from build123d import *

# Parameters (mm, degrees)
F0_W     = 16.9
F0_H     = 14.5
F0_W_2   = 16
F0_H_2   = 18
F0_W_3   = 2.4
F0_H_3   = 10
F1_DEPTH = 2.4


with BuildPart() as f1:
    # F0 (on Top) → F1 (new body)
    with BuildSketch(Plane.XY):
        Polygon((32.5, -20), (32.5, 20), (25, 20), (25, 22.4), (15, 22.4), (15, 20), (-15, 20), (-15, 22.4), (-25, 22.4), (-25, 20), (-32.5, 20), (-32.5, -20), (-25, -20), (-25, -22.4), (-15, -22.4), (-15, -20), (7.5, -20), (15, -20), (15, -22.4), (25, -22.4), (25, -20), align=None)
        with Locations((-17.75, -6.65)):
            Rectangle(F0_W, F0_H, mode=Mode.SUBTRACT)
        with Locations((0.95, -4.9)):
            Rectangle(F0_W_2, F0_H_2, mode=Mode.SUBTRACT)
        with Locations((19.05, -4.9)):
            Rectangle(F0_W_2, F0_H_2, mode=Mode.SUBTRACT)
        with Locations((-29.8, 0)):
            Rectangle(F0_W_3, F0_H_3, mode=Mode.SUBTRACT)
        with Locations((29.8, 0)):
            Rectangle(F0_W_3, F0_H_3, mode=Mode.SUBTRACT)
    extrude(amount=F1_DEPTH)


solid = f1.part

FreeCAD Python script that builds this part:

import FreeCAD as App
import Part
import Sketcher
Q = App.Units.Quantity

doc = App.newDocument("Part")
params = doc.addObject("Spreadsheet::Sheet", "Params")
for row, (alias, value) in enumerate([
    ("sketch1_width", "10 mm"),
    ("sketch1_width2", "30 mm"),
    ("sketch1_width3", "16 mm"),
    ("sketch1_height", "40 mm"),
    ("sketch1_height2", "18 mm"),
    ("pad1_length", "2.4 mm"),
], start=1):
    params.set(f"A{row}", alias)
    params.set(f"B{row}", "=" + value)
    params.setAlias(f"B{row}", alias)

body = doc.addObject("PartDesign::Body", "Body")

# Sketch on XY plane
sketch1 = body.newObject("Sketcher::SketchObject", "Sketch")
sketch1.AttachmentSupport = (doc.getObject("XY_Plane"), [""])
sketch1.MapMode = "FlatFace"
sketch1.addGeometry([
    Part.LineSegment(App.Vector(32.5, -20, 0), App.Vector(32.5, 20, 0)),  # 0
    Part.LineSegment(App.Vector(32.5, 20, 0), App.Vector(25, 20, 0)),  # 1
    Part.LineSegment(App.Vector(25, 20, 0), App.Vector(25, 22.4, 0)),  # 2
    Part.LineSegment(App.Vector(25, 22.4, 0), App.Vector(15, 22.4, 0)),  # 3
    Part.LineSegment(App.Vector(15, 22.4, 0), App.Vector(15, 20, 0)),  # 4
    Part.LineSegment(App.Vector(15, 20, 0), App.Vector(-15, 20, 0)),  # 5
    Part.LineSegment(App.Vector(-15, 20, 0), App.Vector(-15, 22.4, 0)),  # 6
    Part.LineSegment(App.Vector(-15, 22.4, 0), App.Vector(-25, 22.4, 0)),  # 7
    Part.LineSegment(App.Vector(-25, 22.4, 0), App.Vector(-25, 20, 0)),  # 8
    Part.LineSegment(App.Vector(-25, 20, 0), App.Vector(-32.5, 20, 0)),  # 9
    Part.LineSegment(App.Vector(-32.5, 20, 0), App.Vector(-32.5, -20, 0)),  # 10
    Part.LineSegment(App.Vector(-32.5, -20, 0), App.Vector(-25, -20, 0)),  # 11
    Part.LineSegment(App.Vector(-25, -20, 0), App.Vector(-25, -22.4, 0)),  # 12
    Part.LineSegment(App.Vector(-25, -22.4, 0), App.Vector(-15, -22.4, 0)),  # 13
    Part.LineSegment(App.Vector(-15, -22.4, 0), App.Vector(-15, -20, 0)),  # 14
    Part.LineSegment(App.Vector(-15, -20, 0), App.Vector(15, -20, 0)),  # 15
    Part.LineSegment(App.Vector(15, -20, 0), App.Vector(15, -22.4, 0)),  # 16
    Part.LineSegment(App.Vector(15, -22.4, 0), App.Vector(25, -22.4, 0)),  # 17
    Part.LineSegment(App.Vector(25, -22.4, 0), App.Vector(25, -20, 0)),  # 18
    Part.LineSegment(App.Vector(25, -20, 0), App.Vector(32.5, -20, 0)),  # 19
    Part.LineSegment(App.Vector(-9.3, -13.9, 0), App.Vector(-26.2, -13.9, 0)),  # 20
    Part.LineSegment(App.Vector(-26.2, -13.9, 0), App.Vector(-26.2, 0.6, 0)),  # 21
    Part.LineSegment(App.Vector(-26.2, 0.6, 0), App.Vector(-9.3, 0.6, 0)),  # 22
    Part.LineSegment(App.Vector(-9.3, 0.6, 0), App.Vector(-9.3, -13.9, 0)),  # 23
    Part.LineSegment(App.Vector(8.9, -13.9, 0), App.Vector(-7, -13.9, 0)),  # 24
    Part.LineSegment(App.Vector(-7, -13.9, 0), App.Vector(-7, 4.1, 0)),  # 25
    Part.LineSegment(App.Vector(-7, 4.1, 0), App.Vector(8.9, 4.1, 0)),  # 26
    Part.LineSegment(App.Vector(8.9, 4.1, 0), App.Vector(8.9, -13.9, 0)),  # 27
    Part.LineSegment(App.Vector(27.1, -13.9, 0), App.Vector(11.1, -13.9, 0)),  # 28
    Part.LineSegment(App.Vector(11.1, -13.9, 0), App.Vector(11.1, 4.1, 0)),  # 29
    Part.LineSegment(App.Vector(11.1, 4.1, 0), App.Vector(27.1, 4.1, 0)),  # 30
    Part.LineSegment(App.Vector(27.1, 4.1, 0), App.Vector(27.1, -13.9, 0)),  # 31
    Part.LineSegment(App.Vector(-28.6, -5, 0), App.Vector(-31, -5, 0)),  # 32
    Part.LineSegment(App.Vector(-31, -5, 0), App.Vector(-31, 5, 0)),  # 33
    Part.LineSegment(App.Vector(-31, 5, 0), App.Vector(-28.6, 5, 0)),  # 34
    Part.LineSegment(App.Vector(-28.6, 5, 0), App.Vector(-28.6, -5, 0)),  # 35
    Part.LineSegment(App.Vector(31, -5, 0), App.Vector(28.6, -5, 0)),  # 36
    Part.LineSegment(App.Vector(28.6, -5, 0), App.Vector(28.6, 5, 0)),  # 37
    Part.LineSegment(App.Vector(28.6, 5, 0), App.Vector(31, 5, 0)),  # 38
    Part.LineSegment(App.Vector(31, 5, 0), App.Vector(31, -5, 0)),  # 39
], False)
sketch1.addConstraint([
    Sketcher.Constraint("Coincident", 0, 2, 1, 1),
    Sketcher.Constraint("Coincident", 1, 2, 2, 1),
    Sketcher.Constraint("Coincident", 2, 2, 3, 1),
    Sketcher.Constraint("Coincident", 3, 2, 4, 1),
    Sketcher.Constraint("Coincident", 4, 2, 5, 1),
    Sketcher.Constraint("Coincident", 5, 2, 6, 1),
    Sketcher.Constraint("Coincident", 6, 2, 7, 1),
    Sketcher.Constraint("Coincident", 7, 2, 8, 1),
    Sketcher.Constraint("Coincident", 8, 2, 9, 1),
    Sketcher.Constraint("Coincident", 9, 2, 10, 1),
    Sketcher.Constraint("Coincident", 10, 2, 11, 1),
    Sketcher.Constraint("Coincident", 11, 2, 12, 1),
    Sketcher.Constraint("Coincident", 12, 2, 13, 1),
    Sketcher.Constraint("Coincident", 13, 2, 14, 1),
    Sketcher.Constraint("Coincident", 14, 2, 15, 1),
    Sketcher.Constraint("Coincident", 15, 2, 16, 1),
    Sketcher.Constraint("Coincident", 16, 2, 17, 1),
    Sketcher.Constraint("Coincident", 17, 2, 18, 1),
    Sketcher.Constraint("Coincident", 18, 2, 19, 1),
    Sketcher.Constraint("Coincident", 19, 2, 0, 1),
    Sketcher.Constraint("Coincident", 20, 2, 21, 1),
    Sketcher.Constraint("Coincident", 21, 2, 22, 1),
    Sketcher.Constraint("Coincident", 22, 2, 23, 1),
    Sketcher.Constraint("Coincident", 23, 2, 20, 1),
    Sketcher.Constraint("Coincident", 24, 2, 25, 1),
    Sketcher.Constraint("Coincident", 25, 2, 26, 1),
    Sketcher.Constraint("Coincident", 26, 2, 27, 1),
    Sketcher.Constraint("Coincident", 27, 2, 24, 1),
    Sketcher.Constraint("Coincident", 28, 2, 29, 1),
    Sketcher.Constraint("Coincident", 29, 2, 30, 1),
    Sketcher.Constraint("Coincident", 30, 2, 31, 1),
    Sketcher.Constraint("Coincident", 31, 2, 28, 1),
    Sketcher.Constraint("Coincident", 32, 2, 33, 1),
    Sketcher.Constraint("Coincident", 33, 2, 34, 1),
    Sketcher.Constraint("Coincident", 34, 2, 35, 1),
    Sketcher.Constraint("Coincident", 35, 2, 32, 1),
    Sketcher.Constraint("Coincident", 36, 2, 37, 1),
    Sketcher.Constraint("Coincident", 37, 2, 38, 1),
    Sketcher.Constraint("Coincident", 38, 2, 39, 1),
    Sketcher.Constraint("Coincident", 39, 2, 36, 1),
    Sketcher.Constraint("Vertical", 0),
    Sketcher.Constraint("Horizontal", 1),
    Sketcher.Constraint("Vertical", 2),
    Sketcher.Constraint("Horizontal", 3),
    Sketcher.Constraint("Vertical", 4),
    Sketcher.Constraint("Horizontal", 5),
    Sketcher.Constraint("Vertical", 6),
    Sketcher.Constraint("Horizontal", 7),
    Sketcher.Constraint("Vertical", 8),
    Sketcher.Constraint("Horizontal", 9),
    Sketcher.Constraint("Vertical", 10),
    Sketcher.Constraint("Horizontal", 11),
    Sketcher.Constraint("Vertical", 12),
    Sketcher.Constraint("Horizontal", 13),
    Sketcher.Constraint("Vertical", 14),
    Sketcher.Constraint("Horizontal", 15),
    Sketcher.Constraint("Vertical", 16),
    Sketcher.Constraint("Horizontal", 17),
    Sketcher.Constraint("Vertical", 18),
    Sketcher.Constraint("Horizontal", 19),
    Sketcher.Constraint("Horizontal", 20),
    Sketcher.Constraint("Vertical", 21),
    Sketcher.Constraint("Horizontal", 22),
    Sketcher.Constraint("Vertical", 23),
    Sketcher.Constraint("Horizontal", 24),
    Sketcher.Constraint("Vertical", 25),
    Sketcher.Constraint("Horizontal", 26),
    Sketcher.Constraint("Vertical", 27),
    Sketcher.Constraint("Horizontal", 28),
    Sketcher.Constraint("Vertical", 29),
    Sketcher.Constraint("Horizontal", 30),
    Sketcher.Constraint("Vertical", 31),
    Sketcher.Constraint("Horizontal", 32),
    Sketcher.Constraint("Vertical", 33),
    Sketcher.Constraint("Horizontal", 34),
    Sketcher.Constraint("Vertical", 35),
    Sketcher.Constraint("Horizontal", 36),
    Sketcher.Constraint("Vertical", 37),
    Sketcher.Constraint("Horizontal", 38),
    Sketcher.Constraint("Vertical", 39),
    Sketcher.Constraint("Symmetric", 0, 2, 10, 2, -1, 1),
    Sketcher.Constraint("Symmetric", 2, 2, 12, 2, -1, 1),
    Sketcher.Constraint("Symmetric", 4, 2, 14, 2, -1, 1),
    Sketcher.Constraint("Symmetric", 6, 2, 16, 2, -1, 1),
    Sketcher.Constraint("Symmetric", 8, 2, 18, 2, -1, 1),
    Sketcher.Constraint("Symmetric", 34, 2, 36, 2, -1, 1),
    Sketcher.Constraint("Symmetric", 32, 2, 38, 2, -1, 1),
    Sketcher.Constraint("Symmetric", 3, 2, 6, 2, -2),
    Sketcher.Constraint("Symmetric", 1, 2, 8, 2, -2),
    Sketcher.Constraint("Horizontal", 1, 2, 4, 2),
    Sketcher.Constraint("Horizontal", 23, 2, 24, 2),
    Sketcher.Constraint("Horizontal", 27, 2, 28, 2),
    Sketcher.Constraint("Horizontal", 26, 2, 29, 2),
    Sketcher.Constraint("Horizontal", 35, 2, 36, 2),
    Sketcher.Constraint("Equal", 26, 28),
    Sketcher.Constraint("Equal", 38, 2),
    Sketcher.Constraint("Equal", 17, 33),
    Sketcher.Constraint("DistanceX", 3, 2, 3, 1, Q("10 mm")),
    Sketcher.Constraint("DistanceX", 5, 2, 5, 1, Q("30 mm")),
    Sketcher.Constraint("DistanceX", 24, 2, 24, 1, Q("16 mm")),
    Sketcher.Constraint("DistanceY", 0, 1, 0, 2, Q("40 mm")),
    Sketcher.Constraint("DistanceY", 25, 1, 25, 2, Q("18 mm")),
    Sketcher.Constraint("DistanceX", 1, 2, 1, 1, Q("7.5 mm")),
    Sketcher.Constraint("DistanceX", 20, 2, 20, 1, Q("16.9 mm")),
    Sketcher.Constraint("DistanceX", 32, 2, 32, 1, Q("2.4 mm")),
    Sketcher.Constraint("DistanceY", 21, 1, 21, 2, Q("14.5 mm")),
    Sketcher.Constraint("DistanceX", 32, 2, -1, 1, Q("31 mm")),
    Sketcher.Constraint("DistanceX", 20, 2, -1, 1, Q("26.2 mm")),
    Sketcher.Constraint("DistanceY", 20, 2, -1, 1, Q("13.9 mm")),
    Sketcher.Constraint("DistanceX", 27, 2, 28, 2, Q("2.1 mm")),
    Sketcher.Constraint("DistanceX", 24, 2, -1, 1, Q("7.05 mm")),
])
sketch1.setExpression("Constraints[97]", "Params.sketch1_width")
sketch1.setExpression("Constraints[98]", "Params.sketch1_width2")
sketch1.setExpression("Constraints[99]", "Params.sketch1_width3")
sketch1.setExpression("Constraints[100]", "Params.sketch1_height")
sketch1.setExpression("Constraints[101]", "Params.sketch1_height2")
pad1 = body.newObject("PartDesign::Pad", "Pad")
pad1.Profile = sketch1
pad1.setExpression("Length", "Params.pad1_length")

doc.recompute()
